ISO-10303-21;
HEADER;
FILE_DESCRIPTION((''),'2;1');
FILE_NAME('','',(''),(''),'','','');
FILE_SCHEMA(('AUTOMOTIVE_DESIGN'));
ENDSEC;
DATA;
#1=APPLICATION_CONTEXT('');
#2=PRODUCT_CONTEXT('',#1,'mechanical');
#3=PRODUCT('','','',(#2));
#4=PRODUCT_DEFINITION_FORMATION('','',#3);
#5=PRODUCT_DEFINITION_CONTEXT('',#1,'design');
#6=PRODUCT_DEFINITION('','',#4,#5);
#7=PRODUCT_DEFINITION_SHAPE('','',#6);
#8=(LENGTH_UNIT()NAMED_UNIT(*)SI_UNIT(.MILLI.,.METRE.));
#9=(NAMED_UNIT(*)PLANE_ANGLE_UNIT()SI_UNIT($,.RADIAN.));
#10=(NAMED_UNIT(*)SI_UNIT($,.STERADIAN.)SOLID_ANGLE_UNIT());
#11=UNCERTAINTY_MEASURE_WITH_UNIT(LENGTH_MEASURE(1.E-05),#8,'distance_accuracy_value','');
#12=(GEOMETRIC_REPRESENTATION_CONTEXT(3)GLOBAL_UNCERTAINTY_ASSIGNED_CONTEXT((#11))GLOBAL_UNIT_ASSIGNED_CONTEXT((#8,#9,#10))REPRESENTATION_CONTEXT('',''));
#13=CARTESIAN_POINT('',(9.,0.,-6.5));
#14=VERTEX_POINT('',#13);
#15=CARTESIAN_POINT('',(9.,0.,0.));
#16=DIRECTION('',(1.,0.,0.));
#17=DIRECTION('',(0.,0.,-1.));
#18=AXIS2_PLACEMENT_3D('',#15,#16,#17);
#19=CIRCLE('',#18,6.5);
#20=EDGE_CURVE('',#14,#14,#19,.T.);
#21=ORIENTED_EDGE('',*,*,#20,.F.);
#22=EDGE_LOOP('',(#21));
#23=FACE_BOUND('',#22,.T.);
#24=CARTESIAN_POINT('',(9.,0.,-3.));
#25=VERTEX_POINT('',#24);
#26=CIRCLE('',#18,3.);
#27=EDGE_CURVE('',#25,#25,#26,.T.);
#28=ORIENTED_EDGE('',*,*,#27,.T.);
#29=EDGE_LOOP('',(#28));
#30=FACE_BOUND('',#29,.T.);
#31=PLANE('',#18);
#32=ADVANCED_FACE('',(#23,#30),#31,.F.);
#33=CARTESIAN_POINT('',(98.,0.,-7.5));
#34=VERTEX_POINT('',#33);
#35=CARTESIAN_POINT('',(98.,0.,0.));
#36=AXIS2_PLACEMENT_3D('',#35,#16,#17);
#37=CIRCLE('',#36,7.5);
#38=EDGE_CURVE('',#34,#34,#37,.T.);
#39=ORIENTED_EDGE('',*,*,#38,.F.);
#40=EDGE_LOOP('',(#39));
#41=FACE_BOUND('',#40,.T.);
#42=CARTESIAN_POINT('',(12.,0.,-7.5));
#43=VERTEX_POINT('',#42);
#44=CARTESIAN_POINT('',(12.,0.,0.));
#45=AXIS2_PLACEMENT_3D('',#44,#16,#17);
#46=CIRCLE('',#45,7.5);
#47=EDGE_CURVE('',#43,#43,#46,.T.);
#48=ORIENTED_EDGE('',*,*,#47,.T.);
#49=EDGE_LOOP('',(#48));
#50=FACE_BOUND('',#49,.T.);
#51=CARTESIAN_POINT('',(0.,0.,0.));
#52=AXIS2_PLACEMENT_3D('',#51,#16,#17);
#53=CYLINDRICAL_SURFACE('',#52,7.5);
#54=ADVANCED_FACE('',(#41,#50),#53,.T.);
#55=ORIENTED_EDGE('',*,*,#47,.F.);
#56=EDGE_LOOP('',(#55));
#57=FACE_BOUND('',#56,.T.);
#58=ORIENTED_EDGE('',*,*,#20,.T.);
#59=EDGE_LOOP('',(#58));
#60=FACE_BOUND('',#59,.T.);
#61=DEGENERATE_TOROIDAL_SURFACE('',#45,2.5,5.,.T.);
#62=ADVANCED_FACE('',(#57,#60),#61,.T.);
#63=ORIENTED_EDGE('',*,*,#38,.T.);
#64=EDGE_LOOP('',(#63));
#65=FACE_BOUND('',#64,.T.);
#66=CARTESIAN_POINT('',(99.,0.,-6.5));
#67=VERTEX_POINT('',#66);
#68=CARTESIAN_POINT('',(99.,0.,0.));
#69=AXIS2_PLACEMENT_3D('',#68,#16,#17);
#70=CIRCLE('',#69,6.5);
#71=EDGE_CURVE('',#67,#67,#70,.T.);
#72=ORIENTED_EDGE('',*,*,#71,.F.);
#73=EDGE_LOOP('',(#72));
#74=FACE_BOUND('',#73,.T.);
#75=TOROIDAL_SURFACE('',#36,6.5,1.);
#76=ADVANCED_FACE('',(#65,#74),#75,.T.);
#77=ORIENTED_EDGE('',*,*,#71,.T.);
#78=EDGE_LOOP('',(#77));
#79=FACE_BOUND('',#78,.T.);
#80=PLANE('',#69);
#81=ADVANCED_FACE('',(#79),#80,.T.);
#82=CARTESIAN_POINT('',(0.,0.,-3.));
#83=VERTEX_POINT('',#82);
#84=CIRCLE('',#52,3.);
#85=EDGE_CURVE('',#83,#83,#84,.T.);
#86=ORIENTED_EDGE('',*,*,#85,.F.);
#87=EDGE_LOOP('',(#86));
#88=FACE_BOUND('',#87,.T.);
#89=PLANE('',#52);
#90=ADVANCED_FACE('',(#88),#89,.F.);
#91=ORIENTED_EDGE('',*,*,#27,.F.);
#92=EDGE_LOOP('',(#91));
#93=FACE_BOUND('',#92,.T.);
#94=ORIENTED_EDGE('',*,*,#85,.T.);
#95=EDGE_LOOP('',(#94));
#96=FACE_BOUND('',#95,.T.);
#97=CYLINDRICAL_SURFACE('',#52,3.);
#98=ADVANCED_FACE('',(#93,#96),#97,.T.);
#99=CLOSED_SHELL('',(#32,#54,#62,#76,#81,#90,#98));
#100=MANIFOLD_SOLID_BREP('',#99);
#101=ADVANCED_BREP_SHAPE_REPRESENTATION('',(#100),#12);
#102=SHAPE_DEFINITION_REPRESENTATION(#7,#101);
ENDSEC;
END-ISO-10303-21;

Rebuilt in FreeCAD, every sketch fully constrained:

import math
import FreeCAD as App
import Part
import Sketcher
from FreeCAD import Vector
Q = App.Units.Quantity

doc = App.newDocument("Part")
body = doc.addObject("PartDesign::Body", "Body")

# Sketch on XY plane
sketch1 = body.newObject("Sketcher::SketchObject", "Sketch")
sketch1.AttachmentSupport = (doc.getObject("XY_Plane"), [""])
sketch1.MapMode = "FlatFace"
sketch1.addGeometry([
    Part.LineSegment(Vector(0, 3, 0), Vector(0, 0, 0)),  # 0
    Part.LineSegment(Vector(0, 0, 0), Vector(99, 0, 0)),  # 1
    Part.LineSegment(Vector(99, 0, 0), Vector(99, 6.5, 0)),  # 2
    Part.ArcOfCircle(Part.Circle(Vector(98, 6.5, 0), Vector(0, 0, 1), 1), math.radians(0), math.radians(90)),  # 3
    Part.LineSegment(Vector(98, 7.5, 0), Vector(12, 7.5, 0)),  # 4
    Part.ArcOfCircle(Part.Circle(Vector(12, 2.5, 0), Vector(0, 0, 1), 5), math.radians(90), math.radians(127)),  # 5
    Part.LineSegment(Vector(9, 6.5, 0), Vector(9, 3, 0)),  # 6
    Part.LineSegment(Vector(9, 3, 0), Vector(0, 3, 0)),  # 7
], False)
sketch1.addConstraint([
    Sketcher.Constraint("Coincident", 0, 2, 1, 1),
    Sketcher.Constraint("Coincident", 1, 2, 2, 1),
    Sketcher.Constraint("Tangent", 2, 2, 3, 1),
    Sketcher.Constraint("Tangent", 3, 2, 4, 1),
    Sketcher.Constraint("Tangent", 4, 2, 5, 1),
    Sketcher.Constraint("Coincident", 5, 2, 6, 1),
    Sketcher.Constraint("Coincident", 6, 2, 7, 1),
    Sketcher.Constraint("Coincident", 7, 2, 0, 1),
    Sketcher.Constraint("Vertical", 0),
    Sketcher.Constraint("Horizontal", 1),
    Sketcher.Constraint("Vertical", 2),
    Sketcher.Constraint("Horizontal", 4),
    Sketcher.Constraint("Vertical", 6),
    Sketcher.Constraint("Horizontal", 7),
    Sketcher.Constraint("Coincident", 0, 2, -1, 1),
    Sketcher.Constraint("Horizontal", 2, 2, 5, 2),
    Sketcher.Constraint("Radius", 3, Q("1 mm")),
    Sketcher.Constraint("Radius", 5, Q("5 mm")),
    Sketcher.Constraint("DistanceX", 1, 1, 1, 2, Q("99 mm")),
    Sketcher.Constraint("DistanceX", 4, 2, 4, 1, Q("86 mm")),
    Sketcher.Constraint("DistanceY", 0, 2, 0, 1, Q("3 mm")),
    Sketcher.Constraint("DistanceY", 2, 1, 2, 2, Q("6.5 mm")),
])
revolution = body.newObject("PartDesign::Revolution", "Revolution")
revolution.Profile = sketch1
revolution.ReferenceAxis = (sketch1, ["H_Axis"])
revolution.Angle = 360

doc.recompute()
